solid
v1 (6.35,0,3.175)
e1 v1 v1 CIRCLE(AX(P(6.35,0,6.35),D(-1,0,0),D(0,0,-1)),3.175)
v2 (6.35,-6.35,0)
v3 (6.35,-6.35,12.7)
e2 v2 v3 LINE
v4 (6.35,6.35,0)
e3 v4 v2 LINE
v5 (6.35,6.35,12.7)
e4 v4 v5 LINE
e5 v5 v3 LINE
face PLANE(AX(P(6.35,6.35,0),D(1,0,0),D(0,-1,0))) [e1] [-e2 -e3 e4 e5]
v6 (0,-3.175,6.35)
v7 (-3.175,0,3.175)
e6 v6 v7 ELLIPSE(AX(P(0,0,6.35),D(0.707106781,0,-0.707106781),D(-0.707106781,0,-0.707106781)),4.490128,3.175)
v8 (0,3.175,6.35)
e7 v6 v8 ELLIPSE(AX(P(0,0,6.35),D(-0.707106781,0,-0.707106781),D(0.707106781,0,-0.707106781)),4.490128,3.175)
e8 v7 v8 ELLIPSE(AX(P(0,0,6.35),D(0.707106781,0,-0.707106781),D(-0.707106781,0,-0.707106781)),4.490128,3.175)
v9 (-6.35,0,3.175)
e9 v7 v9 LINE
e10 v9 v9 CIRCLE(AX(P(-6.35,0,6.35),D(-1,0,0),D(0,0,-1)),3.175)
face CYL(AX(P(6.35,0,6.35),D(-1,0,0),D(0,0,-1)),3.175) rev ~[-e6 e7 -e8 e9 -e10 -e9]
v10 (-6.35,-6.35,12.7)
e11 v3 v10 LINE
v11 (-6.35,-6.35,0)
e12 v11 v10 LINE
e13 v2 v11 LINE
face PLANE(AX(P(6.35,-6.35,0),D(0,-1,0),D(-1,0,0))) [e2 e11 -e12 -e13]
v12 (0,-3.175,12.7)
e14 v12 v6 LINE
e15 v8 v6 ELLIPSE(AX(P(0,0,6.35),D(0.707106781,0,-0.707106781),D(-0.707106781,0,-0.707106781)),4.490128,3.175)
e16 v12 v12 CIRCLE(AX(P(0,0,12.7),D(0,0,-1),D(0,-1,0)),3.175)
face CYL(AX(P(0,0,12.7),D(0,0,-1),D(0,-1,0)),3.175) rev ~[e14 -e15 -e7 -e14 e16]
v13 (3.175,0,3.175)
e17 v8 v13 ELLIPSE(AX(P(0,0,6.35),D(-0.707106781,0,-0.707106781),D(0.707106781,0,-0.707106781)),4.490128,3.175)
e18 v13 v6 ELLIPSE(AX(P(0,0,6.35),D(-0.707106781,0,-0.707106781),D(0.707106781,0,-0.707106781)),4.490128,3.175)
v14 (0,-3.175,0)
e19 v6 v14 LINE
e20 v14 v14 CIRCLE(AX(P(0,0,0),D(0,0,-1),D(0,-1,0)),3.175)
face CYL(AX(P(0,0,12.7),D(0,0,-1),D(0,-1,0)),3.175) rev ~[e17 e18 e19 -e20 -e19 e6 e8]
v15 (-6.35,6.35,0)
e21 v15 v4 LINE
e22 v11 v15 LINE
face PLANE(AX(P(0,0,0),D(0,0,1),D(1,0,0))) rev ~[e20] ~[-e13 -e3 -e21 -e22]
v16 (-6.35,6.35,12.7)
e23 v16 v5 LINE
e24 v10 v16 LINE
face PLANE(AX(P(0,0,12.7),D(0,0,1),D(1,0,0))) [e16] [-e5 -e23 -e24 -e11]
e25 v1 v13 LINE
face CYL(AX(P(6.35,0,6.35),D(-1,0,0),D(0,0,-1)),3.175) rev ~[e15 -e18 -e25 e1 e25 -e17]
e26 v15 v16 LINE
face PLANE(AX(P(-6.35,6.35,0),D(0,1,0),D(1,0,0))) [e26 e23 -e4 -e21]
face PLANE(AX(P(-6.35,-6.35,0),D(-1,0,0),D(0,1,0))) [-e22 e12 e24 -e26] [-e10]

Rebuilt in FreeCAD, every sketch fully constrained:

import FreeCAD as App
import Part
import Sketcher

V = App.Vector
Q = App.Units.Quantity

doc = App.newDocument("Part")
params = doc.addObject("Spreadsheet::Sheet", "Params")
for row, (alias, value) in enumerate([
    ("sketch1_width", "0.5 in"),
    ("pad1_length", "0.5 in"),
    ("sketch2_diameter", "0.25 in"),
    ("hole_diameter", "0.25 in"),
    ("sketch3_diameter", "0.25 in"),
    ("hole2_diameter", "0.25 in"),
], start=1):
    params.set(f"A{row}", alias)
    params.set(f"B{row}", "=" + value)
    params.setAlias(f"B{row}", alias)

body = doc.addObject("PartDesign::Body", "Body")

# Sketch on XY plane
sketch1 = doc.addObject("Sketcher::SketchObject", "Sketch")
body.addObject(sketch1)
sketch1.AttachmentSupport = (doc.XY_Plane, [""])
sketch1.MapMode = "FlatFace"
sketch1.addGeometry(Part.LineSegment(V(6, 6, 0), V(-6, 6, 0)), False)
sketch1.addGeometry(Part.LineSegment(V(-6, 6, 0), V(-6, -6, 0)), False)
sketch1.addGeometry(Part.LineSegment(V(-6, -6, 0), V(6, -6, 0)), False)
sketch1.addGeometry(Part.LineSegment(V(6, -6, 0), V(6, 6, 0)), False)
sketch1.addConstraint(Sketcher.Constraint("Coincident", 0, 2, 1, 1))
sketch1.addConstraint(Sketcher.Constraint("Coincident", 1, 2, 2, 1))
sketch1.addConstraint(Sketcher.Constraint("Coincident", 2, 2, 3, 1))
sketch1.addConstraint(Sketcher.Constraint("Coincident", 3, 2, 0, 1))
sketch1.addConstraint(Sketcher.Constraint("Horizontal", 0))
sketch1.addConstraint(Sketcher.Constraint("Vertical", 1))
sketch1.addConstraint(Sketcher.Constraint("Horizontal", 2))
sketch1.addConstraint(Sketcher.Constraint("Vertical", 3))
sketch1.addConstraint(Sketcher.Constraint("Symmetric", 0, 2, 2, 2, -1, 1))
sketch1.addConstraint(Sketcher.Constraint("Equal", 2, 1))
sketch1.addConstraint(Sketcher.Constraint("DistanceX", 0, 2, 0, 1, Q("0.5 in")))
sketch1.setExpression("Constraints[10]", "Params.sketch1_width")
pad1 = doc.addObject("PartDesign::Pad", "Pad")
body.addObject(pad1)
pad1.Profile = sketch1
pad1.setExpression("Length", "Params.pad1_length")

# Sketch on XY plane
sketch2 = doc.addObject("Sketcher::SketchObject", "Sketch001")
body.addObject(sketch2)
sketch2.AttachmentSupport = (doc.XY_Plane, [""])
sketch2.MapMode = "FlatFace"
sketch2.AttachmentOffset = App.Placement(V(0, 0, 0.5 * 25.4), App.Rotation())
sketch2.addGeometry(Part.Circle(V(0, 0, 0), V(0, 0, 1), 3.2), False)
sketch2.addConstraint(Sketcher.Constraint("Coincident", 0, 3, -1, 1))
sketch2.addConstraint(Sketcher.Constraint("Diameter", 0, Q("0.25 in")))
sketch2.setExpression("Constraints[1]", "Params.sketch2_diameter")
doc.recompute()
hole = doc.addObject("PartDesign::Hole", "Hole")
body.addObject(hole)
hole.Profile = sketch2
hole.ThreadType = "None"
hole.setExpression("Diameter", "Params.hole_diameter")
hole.DepthType = "ThroughAll"

# Sketch on YZ plane
sketch3 = doc.addObject("Sketcher::SketchObject", "Sketch002")
body.addObject(sketch3)
sketch3.AttachmentSupport = (doc.YZ_Plane, [""])
sketch3.MapMode = "FlatFace"
sketch3.AttachmentOffset = App.Placement(V(0, 0, 0.25 * 25.4), App.Rotation())
sketch3.addGeometry(Part.Circle(V(0, 6.3, 0), V(0, 0, 1), 3.2), False)
sketch3.addConstraint(Sketcher.Constraint("PointOnObject", 0, 3, -2))
sketch3.addConstraint(Sketcher.Constraint("Diameter", 0, Q("0.25 in")))
sketch3.addConstraint(Sketcher.Constraint("DistanceY", -1, 1, 0, 3, Q("0.25 in")))
sketch3.setExpression("Constraints[1]", "Params.sketch3_diameter")
doc.recompute()
hole2 = doc.addObject("PartDesign::Hole", "Hole001")
body.addObject(hole2)
hole2.Profile = sketch3
hole2.ThreadType = "None"
hole2.setExpression("Diameter", "Params.hole2_diameter")
hole2.DepthType = "ThroughAll"

doc.recompute()
